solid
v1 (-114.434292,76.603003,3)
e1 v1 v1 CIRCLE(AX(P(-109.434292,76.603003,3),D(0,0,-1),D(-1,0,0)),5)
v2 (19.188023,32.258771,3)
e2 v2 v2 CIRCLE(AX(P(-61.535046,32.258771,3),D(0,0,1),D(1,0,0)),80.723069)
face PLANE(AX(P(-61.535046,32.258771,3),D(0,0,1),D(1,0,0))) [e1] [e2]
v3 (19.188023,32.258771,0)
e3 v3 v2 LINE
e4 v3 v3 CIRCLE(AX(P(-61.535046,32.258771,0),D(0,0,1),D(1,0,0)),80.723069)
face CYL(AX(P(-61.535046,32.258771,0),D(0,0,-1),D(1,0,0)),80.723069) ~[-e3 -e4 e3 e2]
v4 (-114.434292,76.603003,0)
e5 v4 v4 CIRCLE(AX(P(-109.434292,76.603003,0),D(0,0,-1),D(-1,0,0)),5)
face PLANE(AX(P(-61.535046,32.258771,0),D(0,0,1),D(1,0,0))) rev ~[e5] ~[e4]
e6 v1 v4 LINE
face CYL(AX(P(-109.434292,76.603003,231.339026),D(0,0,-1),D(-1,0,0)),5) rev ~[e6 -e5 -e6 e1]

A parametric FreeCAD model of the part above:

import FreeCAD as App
import Part
import Sketcher
from FreeCAD import Vector
Q = App.Units.Quantity

doc = App.newDocument("Part")
body = doc.addObject("PartDesign::Body", "Body")

# Sketch on XY plane
sketch1 = doc.addObject("Sketcher::SketchObject", "Sketch")
body.addObject(sketch1)
sketch1.AttachmentSupport = (doc.XY_Plane, [""])
sketch1.MapMode = "FlatFace"
sketch1.addGeometry(Part.Circle(Vector(-61.535046, 32.258771, 0), Vector(0, 0, 1), 80.723069), False)
sketch1.addConstraint([
    Sketcher.Constraint("Diameter", 0, Q("161.446138 mm")),
    Sketcher.Constraint("DistanceY", -1, 1, 0, 3, Q("32.258771 mm")),
    Sketcher.Constraint("DistanceX", 0, 3, -1, 1, Q("61.535046 mm")),
])
pad1 = doc.addObject("PartDesign::Pad", "Pad")
body.addObject(pad1)
pad1.Profile = sketch1
pad1.Length = 3

# Sketch on XY plane
sketch2 = doc.addObject("Sketcher::SketchObject", "Sketch001")
body.addObject(sketch2)
sketch2.AttachmentSupport = (doc.XY_Plane, [""])
sketch2.MapMode = "FlatFace"
sketch2.AttachmentOffset = App.Placement(Vector(0, 0, 3), App.Rotation())
sketch2.addGeometry(Part.Circle(Vector(-128.833771, 47.312688, 0), Vector(0, 0, 1), 3), False)
sketch2.addConstraint([
    Sketcher.Constraint("Diameter", 0, Q("6 mm")),
    Sketcher.Constraint("DistanceX", 0, 3, -1, 1, Q("128.833771 mm")),
    Sketcher.Constraint("DistanceY", -1, 1, 0, 3, Q("47.312688 mm")),
])
pad2 = doc.addObject("PartDesign::Pad", "Pad001")
body.addObject(pad2)
pad2.Profile = sketch2
pad2.Length = 3
pad2.Reversed = True

# Sketch on XY plane
sketch3 = doc.addObject("Sketcher::SketchObject", "Sketch002")
body.addObject(sketch3)
sketch3.AttachmentSupport = (doc.XY_Plane, [""])
sketch3.MapMode = "FlatFace"
sketch3.AttachmentOffset = App.Placement(Vector(0, 0, 3), App.Rotation())
sketch3.addGeometry(Part.Circle(Vector(-109.434292, 76.603003, 0), Vector(0, 0, 1), 5), False)
sketch3.addConstraint([
    Sketcher.Constraint("Diameter", 0, Q("10 mm")),
    Sketcher.Constraint("DistanceX", 0, 3, -1, 1, Q("109.434292 mm")),
    Sketcher.Constraint("DistanceY", -1, 1, 0, 3, Q("76.603003 mm")),
])
doc.recompute()
hole = doc.addObject("PartDesign::Hole", "Hole")
body.addObject(hole)
hole.Profile = sketch3
hole.ThreadType = "None"
hole.Diameter = 10
hole.DepthType = "ThroughAll"

doc.recompute()
